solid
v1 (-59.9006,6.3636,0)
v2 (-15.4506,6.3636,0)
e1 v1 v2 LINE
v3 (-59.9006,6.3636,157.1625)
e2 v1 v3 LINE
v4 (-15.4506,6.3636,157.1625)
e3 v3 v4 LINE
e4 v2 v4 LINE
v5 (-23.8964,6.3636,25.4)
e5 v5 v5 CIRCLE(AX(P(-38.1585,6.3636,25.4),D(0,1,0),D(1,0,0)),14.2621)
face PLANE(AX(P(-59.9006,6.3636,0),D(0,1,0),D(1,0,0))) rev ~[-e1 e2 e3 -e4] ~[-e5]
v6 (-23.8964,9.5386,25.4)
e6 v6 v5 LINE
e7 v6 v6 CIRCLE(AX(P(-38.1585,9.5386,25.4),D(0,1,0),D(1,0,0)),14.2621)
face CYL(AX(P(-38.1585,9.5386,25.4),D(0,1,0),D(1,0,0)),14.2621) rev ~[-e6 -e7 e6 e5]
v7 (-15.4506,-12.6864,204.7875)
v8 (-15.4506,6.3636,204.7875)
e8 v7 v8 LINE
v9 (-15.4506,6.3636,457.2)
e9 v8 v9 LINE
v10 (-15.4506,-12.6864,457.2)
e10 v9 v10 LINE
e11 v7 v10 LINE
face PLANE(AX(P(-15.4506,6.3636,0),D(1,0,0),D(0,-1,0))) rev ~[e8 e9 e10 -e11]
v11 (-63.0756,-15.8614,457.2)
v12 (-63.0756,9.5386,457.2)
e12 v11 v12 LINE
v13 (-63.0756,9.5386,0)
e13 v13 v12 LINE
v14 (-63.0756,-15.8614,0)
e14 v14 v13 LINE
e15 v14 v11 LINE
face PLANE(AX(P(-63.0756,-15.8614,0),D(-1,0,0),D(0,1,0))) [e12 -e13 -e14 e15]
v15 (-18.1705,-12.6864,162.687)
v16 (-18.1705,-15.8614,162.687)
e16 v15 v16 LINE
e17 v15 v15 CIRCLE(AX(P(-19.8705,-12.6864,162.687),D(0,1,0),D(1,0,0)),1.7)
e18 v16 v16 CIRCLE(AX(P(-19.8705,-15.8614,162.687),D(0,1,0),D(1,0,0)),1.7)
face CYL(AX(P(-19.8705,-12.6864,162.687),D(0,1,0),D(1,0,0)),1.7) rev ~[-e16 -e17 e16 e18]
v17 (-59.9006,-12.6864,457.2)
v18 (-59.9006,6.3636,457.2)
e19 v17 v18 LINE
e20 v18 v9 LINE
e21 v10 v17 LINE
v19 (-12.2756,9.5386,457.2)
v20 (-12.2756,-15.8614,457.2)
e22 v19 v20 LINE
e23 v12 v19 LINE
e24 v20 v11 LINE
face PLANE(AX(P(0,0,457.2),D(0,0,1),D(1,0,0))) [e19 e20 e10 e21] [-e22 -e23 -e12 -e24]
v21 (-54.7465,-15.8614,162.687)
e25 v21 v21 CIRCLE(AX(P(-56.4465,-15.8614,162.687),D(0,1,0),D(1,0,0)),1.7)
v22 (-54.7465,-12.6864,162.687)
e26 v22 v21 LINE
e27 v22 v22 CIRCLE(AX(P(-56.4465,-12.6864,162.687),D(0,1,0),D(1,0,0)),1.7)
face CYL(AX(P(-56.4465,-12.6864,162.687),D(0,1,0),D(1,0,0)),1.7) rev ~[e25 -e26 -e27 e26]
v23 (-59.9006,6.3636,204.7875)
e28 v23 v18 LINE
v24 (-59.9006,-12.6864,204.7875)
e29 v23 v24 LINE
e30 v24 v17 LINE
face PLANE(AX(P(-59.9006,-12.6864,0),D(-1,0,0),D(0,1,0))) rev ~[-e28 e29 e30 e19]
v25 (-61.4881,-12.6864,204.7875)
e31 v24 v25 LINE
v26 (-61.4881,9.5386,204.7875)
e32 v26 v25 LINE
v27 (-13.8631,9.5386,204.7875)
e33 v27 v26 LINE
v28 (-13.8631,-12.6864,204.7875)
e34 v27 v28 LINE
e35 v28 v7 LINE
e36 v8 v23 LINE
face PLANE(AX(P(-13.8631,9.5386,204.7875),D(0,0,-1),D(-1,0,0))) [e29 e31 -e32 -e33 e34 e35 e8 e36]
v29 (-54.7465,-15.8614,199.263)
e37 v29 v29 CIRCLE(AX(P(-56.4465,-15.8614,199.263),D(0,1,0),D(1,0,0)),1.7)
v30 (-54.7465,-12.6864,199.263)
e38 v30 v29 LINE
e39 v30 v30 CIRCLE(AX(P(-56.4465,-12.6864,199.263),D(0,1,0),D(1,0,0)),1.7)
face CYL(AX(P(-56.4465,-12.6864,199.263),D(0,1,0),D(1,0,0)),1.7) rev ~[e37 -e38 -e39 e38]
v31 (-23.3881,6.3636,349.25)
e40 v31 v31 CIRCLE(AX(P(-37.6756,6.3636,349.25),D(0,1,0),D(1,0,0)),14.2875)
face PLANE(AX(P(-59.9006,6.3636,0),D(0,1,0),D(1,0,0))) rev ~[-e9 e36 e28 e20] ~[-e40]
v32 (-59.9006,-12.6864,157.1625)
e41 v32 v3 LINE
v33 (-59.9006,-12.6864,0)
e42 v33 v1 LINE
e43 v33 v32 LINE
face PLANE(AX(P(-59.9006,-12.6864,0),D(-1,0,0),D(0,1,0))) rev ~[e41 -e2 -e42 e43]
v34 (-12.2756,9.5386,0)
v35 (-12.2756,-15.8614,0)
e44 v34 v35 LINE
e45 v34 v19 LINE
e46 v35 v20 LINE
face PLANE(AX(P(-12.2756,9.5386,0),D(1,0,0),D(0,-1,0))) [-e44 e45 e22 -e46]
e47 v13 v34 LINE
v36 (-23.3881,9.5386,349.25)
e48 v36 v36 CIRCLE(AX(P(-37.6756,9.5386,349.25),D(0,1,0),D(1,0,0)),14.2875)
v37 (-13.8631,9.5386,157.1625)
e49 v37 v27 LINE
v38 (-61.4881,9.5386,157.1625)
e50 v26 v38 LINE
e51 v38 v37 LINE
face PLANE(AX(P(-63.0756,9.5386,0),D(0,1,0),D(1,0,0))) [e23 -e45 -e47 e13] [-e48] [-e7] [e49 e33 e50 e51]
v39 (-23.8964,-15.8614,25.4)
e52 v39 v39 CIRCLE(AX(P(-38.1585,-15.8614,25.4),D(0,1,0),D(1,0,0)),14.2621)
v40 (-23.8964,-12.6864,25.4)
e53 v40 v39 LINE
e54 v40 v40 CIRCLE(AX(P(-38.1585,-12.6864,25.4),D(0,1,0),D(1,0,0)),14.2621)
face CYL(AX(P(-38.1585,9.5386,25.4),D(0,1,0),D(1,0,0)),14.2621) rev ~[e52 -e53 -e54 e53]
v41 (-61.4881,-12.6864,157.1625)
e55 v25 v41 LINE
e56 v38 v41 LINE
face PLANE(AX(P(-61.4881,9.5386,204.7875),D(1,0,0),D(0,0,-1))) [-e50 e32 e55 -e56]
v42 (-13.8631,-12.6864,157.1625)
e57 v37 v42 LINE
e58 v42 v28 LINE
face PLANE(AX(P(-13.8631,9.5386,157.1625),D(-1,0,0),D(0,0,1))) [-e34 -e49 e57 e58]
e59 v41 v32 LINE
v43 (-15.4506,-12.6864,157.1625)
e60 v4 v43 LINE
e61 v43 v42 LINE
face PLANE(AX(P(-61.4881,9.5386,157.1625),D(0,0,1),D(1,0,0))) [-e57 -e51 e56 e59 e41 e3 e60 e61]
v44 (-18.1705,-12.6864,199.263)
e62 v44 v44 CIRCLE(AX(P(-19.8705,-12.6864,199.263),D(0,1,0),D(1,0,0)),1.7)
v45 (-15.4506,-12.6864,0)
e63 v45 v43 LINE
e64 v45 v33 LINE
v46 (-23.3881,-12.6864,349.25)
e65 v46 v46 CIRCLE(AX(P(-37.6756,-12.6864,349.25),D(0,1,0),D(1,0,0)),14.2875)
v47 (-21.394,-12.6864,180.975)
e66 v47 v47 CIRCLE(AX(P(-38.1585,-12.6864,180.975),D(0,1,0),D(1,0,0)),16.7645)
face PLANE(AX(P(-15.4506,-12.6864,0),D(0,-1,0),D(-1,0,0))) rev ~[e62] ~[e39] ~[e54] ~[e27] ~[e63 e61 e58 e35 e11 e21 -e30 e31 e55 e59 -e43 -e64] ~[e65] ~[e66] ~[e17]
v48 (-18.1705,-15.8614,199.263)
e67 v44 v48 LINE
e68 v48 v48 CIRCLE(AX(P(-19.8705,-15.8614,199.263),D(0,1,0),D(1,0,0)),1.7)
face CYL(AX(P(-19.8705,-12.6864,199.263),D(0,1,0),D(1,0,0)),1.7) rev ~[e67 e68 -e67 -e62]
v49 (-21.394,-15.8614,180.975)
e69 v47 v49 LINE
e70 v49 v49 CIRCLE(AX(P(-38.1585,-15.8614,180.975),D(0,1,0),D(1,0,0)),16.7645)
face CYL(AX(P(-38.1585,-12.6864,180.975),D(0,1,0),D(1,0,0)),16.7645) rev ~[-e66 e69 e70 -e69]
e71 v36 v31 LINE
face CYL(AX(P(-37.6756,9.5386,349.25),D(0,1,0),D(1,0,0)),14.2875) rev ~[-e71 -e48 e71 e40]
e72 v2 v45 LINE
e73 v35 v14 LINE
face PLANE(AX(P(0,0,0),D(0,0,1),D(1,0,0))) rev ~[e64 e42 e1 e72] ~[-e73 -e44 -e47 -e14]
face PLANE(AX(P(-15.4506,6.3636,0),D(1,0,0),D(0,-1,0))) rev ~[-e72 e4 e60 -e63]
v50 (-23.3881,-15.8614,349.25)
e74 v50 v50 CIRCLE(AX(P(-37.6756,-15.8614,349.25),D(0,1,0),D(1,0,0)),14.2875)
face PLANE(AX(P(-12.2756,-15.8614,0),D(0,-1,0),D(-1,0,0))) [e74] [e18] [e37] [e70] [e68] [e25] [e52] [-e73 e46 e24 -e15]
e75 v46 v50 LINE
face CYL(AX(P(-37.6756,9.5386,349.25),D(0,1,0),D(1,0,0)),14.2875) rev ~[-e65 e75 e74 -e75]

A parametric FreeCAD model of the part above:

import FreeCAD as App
import Part
import Sketcher

V = App.Vector
Q = App.Units.Quantity

doc = App.newDocument("Part")
body = doc.addObject("PartDesign::Body", "Body")

# Sketch on XY plane
sketch1 = body.newObject("Sketcher::SketchObject", "Sketch")
sketch1.AttachmentSupport = (doc.getObject("XY_Plane"), [""])
sketch1.MapMode = "FlatFace"
sketch1.addGeometry([
    Part.LineSegment(V(-12, 10, 0), V(-63, 10, 0)),  # 0
    Part.LineSegment(V(-63, 10, 0), V(-63, -16, 0)),  # 1
    Part.LineSegment(V(-63, -16, 0), V(-12, -16, 0)),  # 2
    Part.LineSegment(V(-12, -16, 0), V(-12, 10, 0)),  # 3
    Part.LineSegment(V(-60, -13, 0), V(-60, 6, 0)),  # 4
    Part.LineSegment(V(-60, 6, 0), V(-15, 6, 0)),  # 5
    Part.LineSegment(V(-15, 6, 0), V(-15, -13, 0)),  # 6
    Part.LineSegment(V(-15, -13, 0), V(-60, -13, 0)),  # 7
], False)
sketch1.addConstraint([
    Sketcher.Constraint("Coincident", 0, 2, 1, 1),
    Sketcher.Constraint("Coincident", 1, 2, 2, 1),
    Sketcher.Constraint("Coincident", 2, 2, 3, 1),
    Sketcher.Constraint("Coincident", 3, 2, 0, 1),
    Sketcher.Constraint("Coincident", 4, 2, 5, 1),
    Sketcher.Constraint("Coincident", 5, 2, 6, 1),
    Sketcher.Constraint("Coincident", 6, 2, 7, 1),
    Sketcher.Constraint("Coincident", 7, 2, 4, 1),
    Sketcher.Constraint("Horizontal", 0),
    Sketcher.Constraint("Vertical", 1),
    Sketcher.Constraint("Horizontal", 2),
    Sketcher.Constraint("Vertical", 3),
    Sketcher.Constraint("Vertical", 4),
    Sketcher.Constraint("Horizontal", 5),
    Sketcher.Constraint("Vertical", 6),
    Sketcher.Constraint("Horizontal", 7),
    Sketcher.Constraint("DistanceX", 0, 2, 0, 1, Q("2 in")),
    Sketcher.Constraint("DistanceY", 1, 2, 1, 1, Q("1 in")),
    Sketcher.Constraint("DistanceX", 0, 2, 4, 2, Q("0.125 in")),
    Sketcher.Constraint("DistanceY", 4, 2, 0, 2, Q("0.125 in")),
    Sketcher.Constraint("DistanceX", 5, 2, 3, 2, Q("0.125 in")),
    Sketcher.Constraint("DistanceY", 2, 2, 6, 2, Q("0.125 in")),
    Sketcher.Constraint("DistanceX", 0, 2, -1, 1, Q("2.4833 in")),
    Sketcher.Constraint("DistanceY", -1, 1, 0, 2, 9.5386),
])
pad1 = body.newObject("PartDesign::Pad", "Pad")
pad1.Profile = sketch1
pad1.Length = Q("18 in")

# Sketch on XZ plane
sketch2 = body.newObject("Sketcher::SketchObject", "Sketch001")
sketch2.AttachmentSupport = (doc.getObject("XZ_Plane"), [""])
sketch2.MapMode = "FlatFace"
sketch2.AttachmentOffset = App.Placement(V(0, 0, -9.5386), App.Rotation())
sketch2.addGeometry(Part.Circle(V(-38, 25, 0), V(0, 0, 1), 14), False)
sketch2.addConstraint([
    Sketcher.Constraint("Diameter", 0, Q("1.123 in")),
    Sketcher.Constraint("DistanceY", -1, 1, 0, 3, Q("1 in")),
    Sketcher.Constraint("DistanceX", 0, 3, -1, 1, Q("1.5023 in")),
])
pocket1 = body.newObject("PartDesign::Pocket", "Pocket")
pocket1.Profile = sketch2
pocket1.Type = "ThroughAll"
pocket1.Reversed = True

# Sketch on XZ plane
sketch3 = body.newObject("Sketcher::SketchObject", "Sketch002")
sketch3.AttachmentSupport = (doc.getObject("XZ_Plane"), [""])
sketch3.MapMode = "FlatFace"
sketch3.AttachmentOffset = App.Placement(V(0, 0, -9.5386), App.Rotation())
sketch3.addGeometry([
    Part.LineSegment(V(-14, 157, 0), V(-61, 157, 0)),
    Part.LineSegment(V(-61, 157, 0), V(-61, 205, 0)),
    Part.LineSegment(V(-61, 205, 0), V(-14, 205, 0)),
    Part.LineSegment(V(-14, 205, 0), V(-14, 157, 0)),
], False)
sketch3.addConstraint([
    Sketcher.Constraint("Coincident", 0, 2, 1, 1),
    Sketcher.Constraint("Coincident", 1, 2, 2, 1),
    Sketcher.Constraint("Coincident", 2, 2, 3, 1),
    Sketcher.Constraint("Coincident", 3, 2, 0, 1),
    Sketcher.Constraint("Horizontal", 0),
    Sketcher.Constraint("Vertical", 1),
    Sketcher.Constraint("Horizontal", 2),
    Sketcher.Constraint("Vertical", 3),
    Sketcher.Constraint("Equal", 2, 1),
    Sketcher.Constraint("DistanceX", 0, 2, 0, 1, Q("1.875 in")),
    Sketcher.Constraint("DistanceY", -1, 1, 0, 2, Q("6.1875 in")),
    Sketcher.Constraint("DistanceX", 0, 2, -1, 1, Q("2.4208 in")),
])
pocket2 = body.newObject("PartDesign::Pocket", "Pocket001")
pocket2.Profile = sketch3
pocket2.Length = Q("0.875 in")
pocket2.Reversed = True

# Sketch on XZ plane
sketch4 = body.newObject("Sketcher::SketchObject", "Sketch003")
sketch4.AttachmentSupport = (doc.getObject("XZ_Plane"), [""])
sketch4.MapMode = "FlatFace"
sketch4.AttachmentOffset = App.Placement(V(0, 0, 12.6864), App.Rotation())
sketch4.addGeometry([
    Part.Circle(V(-38.2, 181, 0), V(0, 0, 1), 16.8),  # 0
    Part.Circle(V(-56.4, 199.3, 0), V(0, 0, 1), 1.7),  # 1
    Part.Circle(V(-19.9, 199.3, 0), V(0, 0, 1), 1.7),  # 2
    Part.Circle(V(-19.9, 162.7, 0), V(0, 0, 1), 1.7),  # 3
    Part.Circle(V(-56.4, 162.7, 0), V(0, 0, 1), 1.7),  # 4
], False)
sketch4.addConstraint([
    Sketcher.Constraint("Equal", 1, 2),
    Sketcher.Constraint("Equal", 2, 3),
    Sketcher.Constraint("Equal", 3, 4),
    Sketcher.Constraint("Horizontal", 1, 3, 2, 3),
    Sketcher.Constraint("Horizontal", 3, 3, 4, 3),
    Sketcher.Constraint("Vertical", 2, 3, 3, 3),
    Sketcher.Constraint("Vertical", 1, 3, 4, 3),
    Sketcher.Constraint("DistanceX", 1, 3, 0, 3, Q("0.72 in")),
    Sketcher.Constraint("DistanceY", 0, 3, 1, 3, Q("0.72 in")),
    Sketcher.Constraint("DistanceX", 0, 3, 2, 3, Q("0.72 in")),
    Sketcher.Constraint("DistanceY", 3, 3, 0, 3, Q("0.72 in")),
    Sketcher.Constraint("Diameter", 0, 33.529),
    Sketcher.Constraint("Diameter", 1, 3.4),
    Sketcher.Constraint("DistanceY", -1, 1, 0, 3, Q("7.125 in")),
    Sketcher.Constraint("DistanceX", 0, 3, -1, 1, Q("1.5023 in")),
])
pocket3 = body.newObject("PartDesign::Pocket", "Pocket002")
pocket3.Profile = sketch4
pocket3.Type = "ThroughAll"
pocket3.Reversed = True

# Sketch on XZ plane
sketch5 = body.newObject("Sketcher::SketchObject", "Sketch004")
sketch5.AttachmentSupport = (doc.getObject("XZ_Plane"), [""])
sketch5.MapMode = "FlatFace"
sketch5.AttachmentOffset = App.Placement(V(0, 0, -9.5386), App.Rotation())
sketch5.addGeometry(Part.Circle(V(-38, 349, 0), V(0, 0, 1), 14), False)
sketch5.addConstraint([
    Sketcher.Constraint("Diameter", 0, Q("1.125 in")),
    Sketcher.Constraint("DistanceY", -1, 1, 0, 3, Q("13.75 in")),
    Sketcher.Constraint("DistanceX", 0, 3, -1, 1, Q("1.4833 in")),
])
pocket4 = body.newObject("PartDesign::Pocket", "Pocket003")
pocket4.Profile = sketch5
pocket4.Type = "ThroughAll"
pocket4.Reversed = True

doc.recompute()
